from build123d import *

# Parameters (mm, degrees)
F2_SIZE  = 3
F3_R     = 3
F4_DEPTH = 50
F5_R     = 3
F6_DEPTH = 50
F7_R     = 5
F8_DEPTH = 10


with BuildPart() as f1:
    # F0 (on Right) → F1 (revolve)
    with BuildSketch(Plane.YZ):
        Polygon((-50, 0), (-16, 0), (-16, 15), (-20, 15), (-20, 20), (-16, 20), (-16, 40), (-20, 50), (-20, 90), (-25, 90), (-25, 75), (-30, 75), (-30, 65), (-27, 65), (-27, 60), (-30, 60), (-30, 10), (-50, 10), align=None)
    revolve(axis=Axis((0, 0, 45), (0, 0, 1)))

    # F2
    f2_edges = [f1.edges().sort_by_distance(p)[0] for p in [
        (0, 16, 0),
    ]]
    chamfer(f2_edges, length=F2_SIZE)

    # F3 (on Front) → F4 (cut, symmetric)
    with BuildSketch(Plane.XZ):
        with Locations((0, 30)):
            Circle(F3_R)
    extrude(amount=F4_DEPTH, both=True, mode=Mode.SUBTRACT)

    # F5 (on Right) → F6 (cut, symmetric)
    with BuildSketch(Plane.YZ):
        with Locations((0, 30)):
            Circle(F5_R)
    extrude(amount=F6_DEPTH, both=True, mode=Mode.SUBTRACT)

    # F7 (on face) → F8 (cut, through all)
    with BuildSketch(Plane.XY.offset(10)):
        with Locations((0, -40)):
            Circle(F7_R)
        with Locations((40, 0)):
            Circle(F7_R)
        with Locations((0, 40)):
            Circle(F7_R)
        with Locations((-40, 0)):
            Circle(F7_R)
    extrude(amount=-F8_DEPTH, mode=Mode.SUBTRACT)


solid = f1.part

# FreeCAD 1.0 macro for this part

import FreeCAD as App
import Part
import Sketcher

V = App.Vector


def edges_at(feature, points):
    """Names of the edges that pass closest to the given points."""
    edges = feature.Shape.Edges
    near = lambda p: min(range(len(edges)), key=lambda i: edges[i].distToShape(Part.Vertex(*p))[0])
    return sorted({f"Edge{near(p) + 1}" for p in points})


def add_polygon(sketch, points):
    """Adds a closed chain of lines whose ends are joined by coincident constraints."""
    first, n = sketch.GeometryCount, len(points)
    for a, b in zip(points, points[1:] + points[:1]):
        sketch.addGeometry(Part.LineSegment(App.Vector(*a, 0), App.Vector(*b, 0)), False)
    for i in range(n):
        sketch.addConstraint(Sketcher.Constraint("Coincident", first + i, 2, first + (i + 1) % n, 1))

doc = App.newDocument("Part")
body = doc.addObject("PartDesign::Body", "Body")

# Sketch on YZ plane
sketch1 = body.newObject("Sketcher::SketchObject", "Sketch")
sketch1.AttachmentSupport = (doc.getObject("YZ_Plane"), [""])
sketch1.MapMode = "FlatFace"
add_polygon(sketch1, [(-50, 0), (-16, 0), (-16, 15), (-20, 15), (-20, 20), (-16, 20), (-16, 40), (-20, 50), (-20, 90), (-25, 90), (-25, 75), (-30, 75), (-30, 65), (-27, 65), (-27, 60), (-30, 60), (-30, 10), (-50, 10)])  # lines 0-17
sketch1.addConstraint([
    Sketcher.Constraint("Horizontal", 0),
    Sketcher.Constraint("Vertical", 1),
    Sketcher.Constraint("Horizontal", 2),
    Sketcher.Constraint("Vertical", 3),
    Sketcher.Constraint("Horizontal", 4),
    Sketcher.Constraint("Vertical", 5),
    Sketcher.Constraint("Vertical", 7),
    Sketcher.Constraint("Horizontal", 8),
    Sketcher.Constraint("Vertical", 9),
    Sketcher.Constraint("Horizontal", 10),
    Sketcher.Constraint("Vertical", 11),
    Sketcher.Constraint("Horizontal", 12),
    Sketcher.Constraint("Vertical", 13),
    Sketcher.Constraint("Horizontal", 14),
    Sketcher.Constraint("Vertical", 15),
    Sketcher.Constraint("Horizontal", 16),
    Sketcher.Constraint("Vertical", 17),
    Sketcher.Constraint("PointOnObject", 0, 2, -1),
    Sketcher.Constraint("Vertical", 1, 2, 4, 2),
    Sketcher.Constraint("Vertical", 3, 2, 6, 2),
    Sketcher.Constraint("Vertical", 11, 2, 14, 2),
    Sketcher.Constraint("Equal", 8, 10),
    Sketcher.Constraint("Equal", 10, 3),
    Sketcher.Constraint("Equal", 16, 5),
    Sketcher.Constraint("Equal", 1, 9),
    Sketcher.Constraint("Equal", 3, 13),
    Sketcher.Constraint("Equal", 11, 17),
    Sketcher.Constraint("DistanceX", 0, 1, 0, 2, 34.0),
    Sketcher.Constraint("DistanceX", 2, 2, 2, 1, 4.0),
    Sketcher.Constraint("DistanceX", 8, 2, 8, 1, 5.0),
    Sketcher.Constraint("DistanceX", 12, 1, 12, 2, 3.0),
    Sketcher.Constraint("DistanceY", 1, 1, 1, 2, 15.0),
    Sketcher.Constraint("DistanceY", 7, 1, 7, 2, 40.0),
    Sketcher.Constraint("DistanceY", 11, 2, 11, 1, 10.0),
    Sketcher.Constraint("DistanceY", 15, 2, 15, 1, 50.0),
    Sketcher.Constraint("DistanceX", 0, 2, -1, 1, 16.0),
])
revolution = body.newObject("PartDesign::Revolution", "Revolution")
revolution.Profile = sketch1
revolution.ReferenceAxis = (sketch1, ["V_Axis"])
revolution.Angle = 360
doc.recompute()

chamfer = body.newObject("PartDesign::Chamfer", "Chamfer")
chamfer.Base = (revolution, edges_at(revolution, [(0, 16, 0)]))
chamfer.Size = 3

# Sketch on XZ plane
sketch2 = body.newObject("Sketcher::SketchObject", "Sketch001")
sketch2.AttachmentSupport = (doc.getObject("XZ_Plane"), [""])
sketch2.MapMode = "FlatFace"
sketch2.addGeometry(Part.Circle(V(0, 30, 0), V(0, 0, 1), 3), False)
sketch2.addConstraint([
    Sketcher.Constraint("PointOnObject", 0, 3, -2),
    Sketcher.Constraint("Diameter", 0, 6.0),
    Sketcher.Constraint("DistanceY", -1, 1, 0, 3, 30.0),
])
pocket1 = body.newObject("PartDesign::Pocket", "Pocket")
pocket1.Profile = sketch2
pocket1.Length = 100
pocket1.Midplane = True

# Sketch on YZ plane
sketch3 = body.newObject("Sketcher::SketchObject", "Sketch002")
sketch3.AttachmentSupport = (doc.getObject("YZ_Plane"), [""])
sketch3.MapMode = "FlatFace"
sketch3.addGeometry(Part.Circle(V(0, 30, 0), V(0, 0, 1), 3), False)
sketch3.addConstraint([
    Sketcher.Constraint("PointOnObject", 0, 3, -2),
    Sketcher.Constraint("Diameter", 0, 6.0),
    Sketcher.Constraint("DistanceY", -1, 1, 0, 3, 30.0),
])
pocket2 = body.newObject("PartDesign::Pocket", "Pocket001")
pocket2.Profile = sketch3
pocket2.Length = 100
pocket2.Midplane = True

# Sketch on XY plane
sketch4 = body.newObject("Sketcher::SketchObject", "Sketch003")
sketch4.AttachmentSupport = (doc.getObject("XY_Plane"), [""])
sketch4.MapMode = "FlatFace"
sketch4.AttachmentOffset = App.Placement(V(0, 0, 10), App.Rotation())
sketch4.addGeometry([
    Part.Circle(V(0, -40, 0), V(0, 0, 1), 5),
    Part.Circle(V(40, 0, 0), V(0, 0, 1), 5),
    Part.Circle(V(0, 40, 0), V(0, 0, 1), 5),
    Part.Circle(V(-40, 0, 0), V(0, 0, 1), 5),
], False)
sketch4.addConstraint([
    Sketcher.Constraint("Equal", 0, 1),
    Sketcher.Constraint("Equal", 1, 2),
    Sketcher.Constraint("Equal", 2, 3),
    Sketcher.Constraint("Symmetric", 0, 3, 2, 3, -1, 1),
    Sketcher.Constraint("Symmetric", 1, 3, 3, 3, -1, 1),
    Sketcher.Constraint("PointOnObject", 0, 3, -2),
    Sketcher.Constraint("PointOnObject", 1, 3, -1),
    Sketcher.Constraint("Diameter", 0, 10.0),
    Sketcher.Constraint("DistanceY", 0, 3, -1, 1, 40.0),
    Sketcher.Constraint("DistanceX", -1, 1, 1, 3, 40.0),
])
pocket3 = body.newObject("PartDesign::Pocket", "Pocket002")
pocket3.Profile = sketch4
pocket3.Type = "ThroughAll"

doc.recompute()
